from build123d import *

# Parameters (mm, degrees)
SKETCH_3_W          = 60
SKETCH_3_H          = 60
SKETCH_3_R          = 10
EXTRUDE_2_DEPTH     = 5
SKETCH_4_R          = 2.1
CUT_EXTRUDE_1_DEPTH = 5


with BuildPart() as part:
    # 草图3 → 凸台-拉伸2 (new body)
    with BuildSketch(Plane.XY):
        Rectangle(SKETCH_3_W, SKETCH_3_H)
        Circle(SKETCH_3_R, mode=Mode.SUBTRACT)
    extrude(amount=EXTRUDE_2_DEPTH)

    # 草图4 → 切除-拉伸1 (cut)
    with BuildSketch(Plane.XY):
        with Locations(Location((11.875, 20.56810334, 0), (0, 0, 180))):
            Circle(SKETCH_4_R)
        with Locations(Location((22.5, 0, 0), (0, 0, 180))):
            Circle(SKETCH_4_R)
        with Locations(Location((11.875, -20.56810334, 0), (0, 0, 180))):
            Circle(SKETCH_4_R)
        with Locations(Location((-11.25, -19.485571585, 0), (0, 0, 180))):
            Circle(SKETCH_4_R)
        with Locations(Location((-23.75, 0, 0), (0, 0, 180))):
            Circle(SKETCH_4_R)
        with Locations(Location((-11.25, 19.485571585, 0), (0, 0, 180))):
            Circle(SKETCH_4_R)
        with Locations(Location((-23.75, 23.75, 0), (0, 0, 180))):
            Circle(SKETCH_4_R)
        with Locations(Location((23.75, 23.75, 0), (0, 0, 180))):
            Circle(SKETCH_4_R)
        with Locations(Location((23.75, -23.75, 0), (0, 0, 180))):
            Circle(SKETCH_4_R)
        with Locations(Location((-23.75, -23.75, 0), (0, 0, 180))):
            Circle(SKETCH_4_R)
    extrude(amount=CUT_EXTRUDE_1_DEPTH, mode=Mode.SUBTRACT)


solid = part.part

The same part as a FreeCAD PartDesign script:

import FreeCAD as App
import Part
import Sketcher

doc = App.newDocument("Part")
body = doc.addObject("PartDesign::Body", "Body")

sketch1 = body.newObject("Sketcher::SketchObject", "Sketch")
sketch1.AttachmentSupport = (doc.getObject("XY_Plane"), [""])
sketch1.MapMode = "FlatFace"
sketch1.addGeometry([
    Part.LineSegment(App.Vector(-30, 30, 0), App.Vector(-30, -30, 0)),
    Part.LineSegment(App.Vector(-30, -30, 0), App.Vector(30, -30, 0)),
    Part.LineSegment(App.Vector(30, -30, 0), App.Vector(30, 30, 0)),
    Part.LineSegment(App.Vector(30, 30, 0), App.Vector(-30, 30, 0)),
    Part.Circle(App.Vector(0, 0, 0), App.Vector(0, 0, 1), 10),
], False)
sketch1.addConstraint([
    Sketcher.Constraint("Coincident", 0, 2, 1, 1),
    Sketcher.Constraint("Coincident", 1, 2, 2, 1),
    Sketcher.Constraint("Coincident", 2, 2, 3, 1),
    Sketcher.Constraint("Coincident", 3, 2, 0, 1),
    Sketcher.Constraint("Vertical", 0),
    Sketcher.Constraint("Horizontal", 1),
    Sketcher.Constraint("Vertical", 2),
    Sketcher.Constraint("Horizontal", 3),
    Sketcher.Constraint("Coincident", 4, 3, -1, 1),
    Sketcher.Constraint("Symmetric", 0, 2, 2, 2, -1, 1),
    Sketcher.Constraint("Equal", 3, 0),
    Sketcher.Constraint("Diameter", 4, 20.0),
    Sketcher.Constraint("DistanceX", 1, 1, 1, 2, 60.0),
])
pad1 = body.newObject("PartDesign::Pad", "Pad")
pad1.Profile = sketch1
pad1.Length = 5

sketch2 = body.newObject("Sketcher::SketchObject", "Sketch001")
sketch2.AttachmentSupport = (doc.getObject("XY_Plane"), [""])
sketch2.MapMode = "FlatFace"
sketch2.addGeometry([
    Part.Circle(App.Vector(11.9, 20.6, 0), App.Vector(0, 0, 1), 2.1),
    Part.Circle(App.Vector(22.5, 0, 0), App.Vector(0, 0, 1), 2.1),
    Part.Circle(App.Vector(11.9, -20.6, 0), App.Vector(0, 0, 1), 2.1),
    Part.Circle(App.Vector(-11.2, -19.5, 0), App.Vector(0, 0, 1), 2.1),
    Part.Circle(App.Vector(-23.8, 0, 0), App.Vector(0, 0, 1), 2.1),
    Part.Circle(App.Vector(-11.2, 19.5, 0), App.Vector(0, 0, 1), 2.1),
    Part.Circle(App.Vector(-23.8, 23.8, 0), App.Vector(0, 0, 1), 2.1),
    Part.Circle(App.Vector(23.8, 23.8, 0), App.Vector(0, 0, 1), 2.1),
    Part.Circle(App.Vector(23.8, -23.8, 0), App.Vector(0, 0, 1), 2.1),
    Part.Circle(App.Vector(-23.8, -23.8, 0), App.Vector(0, 0, 1), 2.1),
], False)
sketch2.addConstraint([
    Sketcher.Constraint("Equal", 0, 1),
    Sketcher.Constraint("Equal", 1, 2),
    Sketcher.Constraint("Equal", 2, 3),
    Sketcher.Constraint("Equal", 3, 4),
    Sketcher.Constraint("Equal", 4, 5),
    Sketcher.Constraint("Equal", 5, 6),
    Sketcher.Constraint("Equal", 6, 7),
    Sketcher.Constraint("Equal", 7, 8),
    Sketcher.Constraint("Equal", 8, 9),
    Sketcher.Constraint("Symmetric", 6, 3, 8, 3, -1, 1),
    Sketcher.Constraint("Symmetric", 7, 3, 9, 3, -1, 1),
    Sketcher.Constraint("Symmetric", 6, 3, 7, 3, -2),
    Sketcher.Constraint("Symmetric", 0, 3, 2, 3, -1),
    Sketcher.Constraint("Symmetric", 3, 3, 5, 3, -1),
    Sketcher.Constraint("PointOnObject", 1, 3, -1),
    Sketcher.Constraint("PointOnObject", 4, 3, -1),
    Sketcher.Constraint("Vertical", 4, 3, 6, 3),
    Sketcher.Constraint("Diameter", 0, 4.2),
    Sketcher.Constraint("DistanceX", 5, 3, 7, 3, 35.0),
    Sketcher.Constraint("DistanceX", -1, 1, 1, 3, 22.5),
    Sketcher.Constraint("DistanceX", 4, 3, 3, 3, 12.5),
    Sketcher.Constraint("DistanceY", 8, 3, 7, 3, 47.5),
    Sketcher.Constraint("DistanceX", -1, 1, 0, 3, 11.875),
    Sketcher.Constraint("DistanceY", 3, 3, -1, 1, 19.485572),
    Sketcher.Constraint("DistanceY", 2, 3, 3, 3, 1.082532),
])
pocket1 = body.newObject("PartDesign::Pocket", "Pocket")
pocket1.Profile = sketch2
pocket1.Length = 5
pocket1.Reversed = True

doc.recompute()
